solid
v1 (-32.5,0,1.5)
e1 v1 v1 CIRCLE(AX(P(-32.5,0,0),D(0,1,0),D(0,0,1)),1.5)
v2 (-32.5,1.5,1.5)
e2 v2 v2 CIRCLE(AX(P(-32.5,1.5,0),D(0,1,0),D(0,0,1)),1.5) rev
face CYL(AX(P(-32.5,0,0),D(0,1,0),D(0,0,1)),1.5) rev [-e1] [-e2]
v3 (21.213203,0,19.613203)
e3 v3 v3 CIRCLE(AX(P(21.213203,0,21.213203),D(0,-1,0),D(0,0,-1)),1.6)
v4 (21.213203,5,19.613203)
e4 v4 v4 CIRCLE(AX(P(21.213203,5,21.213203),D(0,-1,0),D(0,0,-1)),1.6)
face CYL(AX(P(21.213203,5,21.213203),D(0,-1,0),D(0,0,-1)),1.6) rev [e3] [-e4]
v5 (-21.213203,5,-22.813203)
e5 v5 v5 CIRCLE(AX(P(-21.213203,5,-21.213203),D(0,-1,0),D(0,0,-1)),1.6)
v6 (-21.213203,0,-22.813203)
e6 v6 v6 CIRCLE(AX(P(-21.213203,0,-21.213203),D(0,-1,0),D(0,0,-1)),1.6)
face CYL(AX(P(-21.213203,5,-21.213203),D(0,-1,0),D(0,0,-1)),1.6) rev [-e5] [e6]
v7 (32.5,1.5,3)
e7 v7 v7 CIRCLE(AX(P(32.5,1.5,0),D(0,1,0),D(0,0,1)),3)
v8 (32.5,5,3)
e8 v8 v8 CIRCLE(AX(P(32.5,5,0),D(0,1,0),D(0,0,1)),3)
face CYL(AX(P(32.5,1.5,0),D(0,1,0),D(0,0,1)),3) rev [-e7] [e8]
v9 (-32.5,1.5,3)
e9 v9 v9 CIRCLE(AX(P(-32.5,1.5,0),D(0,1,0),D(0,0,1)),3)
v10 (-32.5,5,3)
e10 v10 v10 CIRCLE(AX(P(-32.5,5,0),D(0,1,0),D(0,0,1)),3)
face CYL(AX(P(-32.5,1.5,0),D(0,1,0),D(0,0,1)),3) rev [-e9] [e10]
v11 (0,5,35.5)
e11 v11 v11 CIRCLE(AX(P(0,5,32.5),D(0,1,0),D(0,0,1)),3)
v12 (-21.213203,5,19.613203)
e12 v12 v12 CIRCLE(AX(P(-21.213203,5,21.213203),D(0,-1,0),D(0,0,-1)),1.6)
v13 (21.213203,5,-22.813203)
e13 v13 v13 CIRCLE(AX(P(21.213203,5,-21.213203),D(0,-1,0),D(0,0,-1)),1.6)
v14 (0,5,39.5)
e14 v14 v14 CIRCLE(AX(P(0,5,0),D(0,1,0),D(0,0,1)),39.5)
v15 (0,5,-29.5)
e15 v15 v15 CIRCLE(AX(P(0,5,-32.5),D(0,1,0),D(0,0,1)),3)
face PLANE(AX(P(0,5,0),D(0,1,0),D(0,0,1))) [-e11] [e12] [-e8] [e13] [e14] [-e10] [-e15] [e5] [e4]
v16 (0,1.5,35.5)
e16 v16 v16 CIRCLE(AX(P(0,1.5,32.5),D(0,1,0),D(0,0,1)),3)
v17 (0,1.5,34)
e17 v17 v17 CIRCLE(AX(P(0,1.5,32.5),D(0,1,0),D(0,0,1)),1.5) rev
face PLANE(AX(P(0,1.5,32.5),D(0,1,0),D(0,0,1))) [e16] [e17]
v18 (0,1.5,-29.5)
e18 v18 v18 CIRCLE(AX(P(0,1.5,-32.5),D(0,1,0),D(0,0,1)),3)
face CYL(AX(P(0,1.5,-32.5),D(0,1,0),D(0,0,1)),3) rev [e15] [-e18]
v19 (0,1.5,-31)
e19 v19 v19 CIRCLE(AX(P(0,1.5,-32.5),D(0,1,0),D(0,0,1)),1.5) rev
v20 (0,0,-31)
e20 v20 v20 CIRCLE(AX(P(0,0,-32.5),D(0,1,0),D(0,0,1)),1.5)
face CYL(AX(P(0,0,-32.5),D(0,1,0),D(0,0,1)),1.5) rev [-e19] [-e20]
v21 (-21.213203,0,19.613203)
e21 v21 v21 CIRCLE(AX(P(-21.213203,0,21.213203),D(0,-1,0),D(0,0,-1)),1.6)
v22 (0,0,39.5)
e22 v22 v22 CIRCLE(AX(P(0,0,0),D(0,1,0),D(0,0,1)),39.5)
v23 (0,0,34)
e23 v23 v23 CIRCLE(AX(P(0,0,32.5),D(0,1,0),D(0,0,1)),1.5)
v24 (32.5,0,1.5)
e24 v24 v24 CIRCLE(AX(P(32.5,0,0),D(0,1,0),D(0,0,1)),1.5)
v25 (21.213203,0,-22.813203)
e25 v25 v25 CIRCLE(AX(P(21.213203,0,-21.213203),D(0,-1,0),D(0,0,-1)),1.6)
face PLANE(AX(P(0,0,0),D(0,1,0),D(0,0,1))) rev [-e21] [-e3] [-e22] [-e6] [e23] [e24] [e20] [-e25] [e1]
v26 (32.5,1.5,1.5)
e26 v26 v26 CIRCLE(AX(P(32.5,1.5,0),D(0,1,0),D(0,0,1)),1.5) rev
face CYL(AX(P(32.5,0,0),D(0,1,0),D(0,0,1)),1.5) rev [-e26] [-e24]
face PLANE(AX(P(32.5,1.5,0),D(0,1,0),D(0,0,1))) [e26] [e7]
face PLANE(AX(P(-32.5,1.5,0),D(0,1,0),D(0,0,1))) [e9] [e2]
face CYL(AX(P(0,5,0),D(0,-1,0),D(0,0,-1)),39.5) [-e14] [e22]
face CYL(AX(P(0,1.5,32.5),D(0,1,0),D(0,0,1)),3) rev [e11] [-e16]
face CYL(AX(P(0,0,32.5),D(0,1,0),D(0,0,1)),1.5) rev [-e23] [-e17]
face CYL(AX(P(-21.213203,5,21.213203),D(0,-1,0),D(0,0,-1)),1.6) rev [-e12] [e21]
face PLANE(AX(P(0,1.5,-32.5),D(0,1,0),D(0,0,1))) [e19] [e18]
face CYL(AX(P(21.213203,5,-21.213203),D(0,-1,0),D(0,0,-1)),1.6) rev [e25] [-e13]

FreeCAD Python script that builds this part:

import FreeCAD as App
import Part
import Sketcher

V = App.Vector
Q = App.Units.Quantity

doc = App.newDocument("Part")
params = doc.addObject("Spreadsheet::Sheet", "Params")
for row, (alias, value) in enumerate([
    ("sketch1_diameter", "79 mm"),
    ("pad1_length", "5 mm"),
    ("sketch2_diameter", "3 mm"),
    ("sketch3_diameter", "6 mm"),
    ("pocket2_length", "3.5 mm"),
    ("sketch4_diameter", "3.2 mm"),
], start=1):
    params.set(f"A{row}", alias)
    params.set(f"B{row}", "=" + value)
    params.setAlias(f"B{row}", alias)

body = doc.addObject("PartDesign::Body", "Body")

# Sketch on XZ plane
sketch1 = doc.addObject("Sketcher::SketchObject", "Sketch")
body.addObject(sketch1)
sketch1.AttachmentSupport = (doc.XZ_Plane, [""])
sketch1.MapMode = "FlatFace"
sketch1.addGeometry(Part.Circle(V(0, 0, 0), V(0, 0, 1), 39.5), False)
sketch1.addConstraint(Sketcher.Constraint("Coincident", 0, 3, -1, 1))
sketch1.addConstraint(Sketcher.Constraint("Diameter", 0, Q("79 mm")))
sketch1.setExpression("Constraints[1]", "Params.sketch1_diameter")
pad1 = doc.addObject("PartDesign::Pad", "Pad")
body.addObject(pad1)
pad1.Profile = sketch1
pad1.setExpression("Length", "Params.pad1_length")
pad1.Reversed = True

# Sketch on XZ plane
sketch2 = doc.addObject("Sketcher::SketchObject", "Sketch001")
body.addObject(sketch2)
sketch2.AttachmentSupport = (doc.XZ_Plane, [""])
sketch2.MapMode = "FlatFace"
sketch2.AttachmentOffset = App.Placement(V(0, 0, -5), App.Rotation())
sketch2.addGeometry(Part.Circle(V(0, -32.5, 0), V(0, 0, 1), 1.5), False)
sketch2.addGeometry(Part.Circle(V(32.5, 0, 0), V(0, 0, 1), 1.5), False)
sketch2.addGeometry(Part.Circle(V(0, 32.5, 0), V(0, 0, 1), 1.5), False)
sketch2.addGeometry(Part.Circle(V(-32.5, 0, 0), V(0, 0, 1), 1.5), False)
sketch2.addConstraint(Sketcher.Constraint("Equal", 0, 1))
sketch2.addConstraint(Sketcher.Constraint("Equal", 1, 2))
sketch2.addConstraint(Sketcher.Constraint("Equal", 2, 3))
sketch2.addConstraint(Sketcher.Constraint("Symmetric", 0, 3, 2, 3, -1, 1))
sketch2.addConstraint(Sketcher.Constraint("Symmetric", 1, 3, 3, 3, -1, 1))
sketch2.addConstraint(Sketcher.Constraint("PointOnObject", 0, 3, -2))
sketch2.addConstraint(Sketcher.Constraint("PointOnObject", 1, 3, -1))
sketch2.addConstraint(Sketcher.Constraint("Diameter", 0, Q("3 mm")))
sketch2.addConstraint(Sketcher.Constraint("DistanceY", 0, 3, 2, 3, Q("65 mm")))
sketch2.addConstraint(Sketcher.Constraint("DistanceX", 3, 3, 1, 3, Q("65 mm")))
sketch2.setExpression("Constraints[7]", "Params.sketch2_diameter")
pocket1 = doc.addObject("PartDesign::Pocket", "Pocket")
body.addObject(pocket1)
pocket1.Profile = sketch2
pocket1.Type = "ThroughAll"
pocket1.Midplane = True

# Sketch on XZ plane
sketch3 = doc.addObject("Sketcher::SketchObject", "Sketch002")
body.addObject(sketch3)
sketch3.AttachmentSupport = (doc.XZ_Plane, [""])
sketch3.MapMode = "FlatFace"
sketch3.AttachmentOffset = App.Placement(V(0, 0, -5), App.Rotation())
sketch3.addGeometry(Part.Circle(V(-32.5, 0, 0), V(0, 0, 1), 3), False)
sketch3.addGeometry(Part.Circle(V(0, 32.5, 0), V(0, 0, 1), 3), False)
sketch3.addGeometry(Part.Circle(V(32.5, 0, 0), V(0, 0, 1), 3), False)
sketch3.addGeometry(Part.Circle(V(0, -32.5, 0), V(0, 0, 1), 3), False)
sketch3.addConstraint(Sketcher.Constraint("Equal", 0, 1))
sketch3.addConstraint(Sketcher.Constraint("Equal", 1, 2))
sketch3.addConstraint(Sketcher.Constraint("Equal", 2, 3))
sketch3.addConstraint(Sketcher.Constraint("Symmetric", 0, 3, 2, 3, -1, 1))
sketch3.addConstraint(Sketcher.Constraint("Symmetric", 1, 3, 3, 3, -1, 1))
sketch3.addConstraint(Sketcher.Constraint("PointOnObject", 0, 3, -1))
sketch3.addConstraint(Sketcher.Constraint("PointOnObject", 1, 3, -2))
sketch3.addConstraint(Sketcher.Constraint("Diameter", 0, Q("6 mm")))
sketch3.addConstraint(Sketcher.Constraint("DistanceX", 0, 3, 2, 3, Q("65 mm")))
sketch3.addConstraint(Sketcher.Constraint("DistanceY", 3, 3, 1, 3, Q("65 mm")))
sketch3.setExpression("Constraints[7]", "Params.sketch3_diameter")
pocket2 = doc.addObject("PartDesign::Pocket", "Pocket001")
body.addObject(pocket2)
pocket2.Profile = sketch3
pocket2.setExpression("Length", "Params.pocket2_length")
pocket2.Reversed = True

# Sketch on XZ plane
sketch4 = doc.addObject("Sketcher::SketchObject", "Sketch003")
body.addObject(sketch4)
sketch4.AttachmentSupport = (doc.XZ_Plane, [""])
sketch4.MapMode = "FlatFace"
sketch4.addGeometry(Part.Circle(V(21.213203, 21.213203, 0), V(0, 0, 1), 1.6), False)
sketch4.addGeometry(Part.Circle(V(21.213203, -21.213203, 0), V(0, 0, 1), 1.6), False)
sketch4.addGeometry(Part.Circle(V(-21.213203, -21.213203, 0), V(0, 0, 1), 1.6), False)
sketch4.addGeometry(Part.Circle(V(-21.213203, 21.213203, 0), V(0, 0, 1), 1.6), False)
sketch4.addConstraint(Sketcher.Constraint("Equal", 0, 1))
sketch4.addConstraint(Sketcher.Constraint("Equal", 1, 2))
sketch4.addConstraint(Sketcher.Constraint("Equal", 2, 3))
sketch4.addConstraint(Sketcher.Constraint("Symmetric", 0, 3, 2, 3, -1, 1))
sketch4.addConstraint(Sketcher.Constraint("Symmetric", 1, 3, 3, 3, -1, 1))
sketch4.addConstraint(Sketcher.Constraint("Symmetric", 1, 3, 2, 3, -2))
sketch4.addConstraint(Sketcher.Constraint("Diameter", 0, Q("3.2 mm")))
sketch4.addConstraint(Sketcher.Constraint("DistanceX", -1, 1, 0, 3, Q("21.213203 mm")))
sketch4.addConstraint(Sketcher.Constraint("DistanceY", -1, 1, 0, 3, Q("21.213203 mm")))
sketch4.setExpression("Constraints[6]", "Params.sketch4_diameter")
pocket3 = doc.addObject("PartDesign::Pocket", "Pocket002")
body.addObject(pocket3)
pocket3.Profile = sketch4
pocket3.Type = "ThroughAll"

doc.recompute()
